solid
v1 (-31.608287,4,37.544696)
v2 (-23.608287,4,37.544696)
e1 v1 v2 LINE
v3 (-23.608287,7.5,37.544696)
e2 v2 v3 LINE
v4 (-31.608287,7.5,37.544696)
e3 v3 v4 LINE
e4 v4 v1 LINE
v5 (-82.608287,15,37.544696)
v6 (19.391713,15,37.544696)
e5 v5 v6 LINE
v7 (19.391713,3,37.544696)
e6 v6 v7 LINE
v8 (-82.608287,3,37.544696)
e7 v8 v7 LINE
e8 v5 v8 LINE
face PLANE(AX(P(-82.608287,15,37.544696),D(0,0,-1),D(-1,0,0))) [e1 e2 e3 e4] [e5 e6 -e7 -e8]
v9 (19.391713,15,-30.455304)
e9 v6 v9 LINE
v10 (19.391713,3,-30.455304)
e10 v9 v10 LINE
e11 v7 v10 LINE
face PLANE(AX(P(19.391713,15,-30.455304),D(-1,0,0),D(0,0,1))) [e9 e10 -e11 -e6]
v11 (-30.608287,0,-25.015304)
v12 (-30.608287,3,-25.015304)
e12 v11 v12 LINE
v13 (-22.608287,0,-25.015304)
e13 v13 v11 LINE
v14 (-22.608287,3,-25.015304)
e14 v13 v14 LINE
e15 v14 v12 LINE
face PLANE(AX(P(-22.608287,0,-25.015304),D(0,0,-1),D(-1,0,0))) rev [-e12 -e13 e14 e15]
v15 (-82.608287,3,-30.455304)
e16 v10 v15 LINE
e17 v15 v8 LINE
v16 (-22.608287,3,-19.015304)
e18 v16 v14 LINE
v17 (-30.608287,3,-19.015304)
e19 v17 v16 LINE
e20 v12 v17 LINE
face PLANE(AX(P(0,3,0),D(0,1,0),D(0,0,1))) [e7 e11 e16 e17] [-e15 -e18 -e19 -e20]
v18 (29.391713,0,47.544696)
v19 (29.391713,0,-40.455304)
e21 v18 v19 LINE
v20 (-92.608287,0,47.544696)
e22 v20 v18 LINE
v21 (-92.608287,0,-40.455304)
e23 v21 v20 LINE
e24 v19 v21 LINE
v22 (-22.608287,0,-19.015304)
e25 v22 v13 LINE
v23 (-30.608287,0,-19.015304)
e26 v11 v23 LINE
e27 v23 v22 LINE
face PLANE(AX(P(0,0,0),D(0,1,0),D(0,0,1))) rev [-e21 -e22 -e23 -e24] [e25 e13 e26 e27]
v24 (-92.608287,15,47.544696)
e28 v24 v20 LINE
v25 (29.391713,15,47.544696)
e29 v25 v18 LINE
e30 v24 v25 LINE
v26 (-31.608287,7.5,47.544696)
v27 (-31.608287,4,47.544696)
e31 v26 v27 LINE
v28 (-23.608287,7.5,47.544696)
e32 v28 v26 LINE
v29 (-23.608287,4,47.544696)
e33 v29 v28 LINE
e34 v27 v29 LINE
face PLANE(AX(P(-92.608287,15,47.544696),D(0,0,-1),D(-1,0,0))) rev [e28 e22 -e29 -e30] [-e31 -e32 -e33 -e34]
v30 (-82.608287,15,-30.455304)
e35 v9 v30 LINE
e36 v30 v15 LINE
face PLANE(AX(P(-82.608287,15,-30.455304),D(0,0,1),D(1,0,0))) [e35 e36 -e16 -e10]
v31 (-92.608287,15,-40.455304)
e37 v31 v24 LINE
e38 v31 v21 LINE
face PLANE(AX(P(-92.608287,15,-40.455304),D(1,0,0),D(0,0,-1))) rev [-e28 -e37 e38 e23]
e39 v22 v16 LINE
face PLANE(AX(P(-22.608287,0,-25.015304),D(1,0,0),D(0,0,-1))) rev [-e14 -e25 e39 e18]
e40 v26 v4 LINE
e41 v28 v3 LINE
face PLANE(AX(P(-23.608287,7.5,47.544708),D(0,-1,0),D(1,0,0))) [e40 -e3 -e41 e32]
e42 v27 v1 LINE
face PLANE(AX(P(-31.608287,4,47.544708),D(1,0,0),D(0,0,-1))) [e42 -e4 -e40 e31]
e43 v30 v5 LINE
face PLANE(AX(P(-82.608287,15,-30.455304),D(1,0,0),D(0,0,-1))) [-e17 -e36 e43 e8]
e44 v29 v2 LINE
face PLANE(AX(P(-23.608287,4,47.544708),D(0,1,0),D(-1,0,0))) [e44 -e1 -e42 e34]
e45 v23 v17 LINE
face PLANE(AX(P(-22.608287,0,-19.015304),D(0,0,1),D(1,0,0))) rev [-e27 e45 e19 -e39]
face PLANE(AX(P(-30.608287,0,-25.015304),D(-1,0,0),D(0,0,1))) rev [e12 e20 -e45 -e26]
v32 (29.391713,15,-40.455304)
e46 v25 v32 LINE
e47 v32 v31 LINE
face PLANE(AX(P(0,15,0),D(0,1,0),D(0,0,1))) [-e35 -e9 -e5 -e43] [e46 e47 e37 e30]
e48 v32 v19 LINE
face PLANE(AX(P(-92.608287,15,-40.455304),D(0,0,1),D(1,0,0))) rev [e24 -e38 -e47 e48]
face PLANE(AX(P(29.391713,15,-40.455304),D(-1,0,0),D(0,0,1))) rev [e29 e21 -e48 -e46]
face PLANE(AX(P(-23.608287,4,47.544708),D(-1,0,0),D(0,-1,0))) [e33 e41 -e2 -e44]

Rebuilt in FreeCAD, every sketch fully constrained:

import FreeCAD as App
import Part
import Sketcher

doc = App.newDocument("Part")
params = doc.addObject("Spreadsheet::Sheet", "Params")
for row, (alias, value) in enumerate([
    ("sketch1_width", "122 mm"),
    ("sketch1_width2", "102 mm"),
    ("sketch1_height", "88 mm"),
    ("sketch1_height2", "68 mm"),
    ("pad1_length", "15 mm"),
    ("sketch2_width", "102 mm"),
    ("sketch2_height", "68 mm"),
    ("pad2_length", "3 mm"),
    ("sketch3_width", "8 mm"),
    ("sketch3_height", "3.5 mm"),
    ("sketch4_width", "8 mm"),
    ("sketch4_height", "3.5 mm"),
    ("pocket2_length", "1 mm"),
    ("sketch5_width", "8 mm"),
    ("sketch5_height", "6 mm"),
], start=1):
    params.set(f"A{row}", alias)
    params.set(f"B{row}", "=" + value)
    params.setAlias(f"B{row}", alias)

body = doc.addObject("PartDesign::Body", "Body")

# Sketch on XZ plane
sketch1 = body.newObject("Sketcher::SketchObject", "Sketch")
sketch1.AttachmentSupport = (doc.getObject("XZ_Plane"), [""])
sketch1.MapMode = "FlatFace"
sketch1.addGeometry(Part.LineSegment(App.Vector(-93, -40, 0), App.Vector(-93, 48, 0)), False)
sketch1.addGeometry(Part.LineSegment(App.Vector(-93, 48, 0), App.Vector(29, 48, 0)), False)
sketch1.addGeometry(Part.LineSegment(App.Vector(29, 48, 0), App.Vector(29, -40, 0)), False)
sketch1.addGeometry(Part.LineSegment(App.Vector(29, -40, 0), App.Vector(-93, -40, 0)), False)
sketch1.addGeometry(Part.LineSegment(App.Vector(19, 38, 0), App.Vector(-83, 38, 0)), False)
sketch1.addGeometry(Part.LineSegment(App.Vector(-83, 38, 0), App.Vector(-83, -30, 0)), False)
sketch1.addGeometry(Part.LineSegment(App.Vector(-83, -30, 0), App.Vector(19, -30, 0)), False)
sketch1.addGeometry(Part.LineSegment(App.Vector(19, -30, 0), App.Vector(19, 38, 0)), False)
sketch1.addConstraint(Sketcher.Constraint("Coincident", 0, 2, 1, 1))
sketch1.addConstraint(Sketcher.Constraint("Coincident", 1, 2, 2, 1))
sketch1.addConstraint(Sketcher.Constraint("Coincident", 2, 2, 3, 1))
sketch1.addConstraint(Sketcher.Constraint("Coincident", 3, 2, 0, 1))
sketch1.addConstraint(Sketcher.Constraint("Coincident", 4, 2, 5, 1))
sketch1.addConstraint(Sketcher.Constraint("Coincident", 5, 2, 6, 1))
sketch1.addConstraint(Sketcher.Constraint("Coincident", 6, 2, 7, 1))
sketch1.addConstraint(Sketcher.Constraint("Coincident", 7, 2, 4, 1))
sketch1.addConstraint(Sketcher.Constraint("Vertical", 0))
sketch1.addConstraint(Sketcher.Constraint("Horizontal", 1))
sketch1.addConstraint(Sketcher.Constraint("Vertical", 2))
sketch1.addConstraint(Sketcher.Constraint("Horizontal", 3))
sketch1.addConstraint(Sketcher.Constraint("Horizontal", 4))
sketch1.addConstraint(Sketcher.Constraint("Vertical", 5))
sketch1.addConstraint(Sketcher.Constraint("Horizontal", 6))
sketch1.addConstraint(Sketcher.Constraint("Vertical", 7))
sketch1.addConstraint(Sketcher.Constraint("DistanceX", 1, 1, 1, 2, 122.0))
sketch1.addConstraint(Sketcher.Constraint("DistanceX", 4, 2, 4, 1, 102.0))
sketch1.addConstraint(Sketcher.Constraint("DistanceY", 0, 1, 0, 2, 88.0))
sketch1.addConstraint(Sketcher.Constraint("DistanceY", 5, 2, 5, 1, 68.0))
sketch1.addConstraint(Sketcher.Constraint("DistanceX", 0, 2, 4, 2, 10.0))
sketch1.addConstraint(Sketcher.Constraint("DistanceY", 4, 2, 0, 2, 10.0))
sketch1.addConstraint(Sketcher.Constraint("DistanceX", 0, 2, -1, 1, 92.608287))
sketch1.addConstraint(Sketcher.Constraint("DistanceY", -1, 1, 0, 2, 47.544696))
sketch1.setExpression("Constraints[16]", "Params.sketch1_width")
sketch1.setExpression("Constraints[17]", "Params.sketch1_width2")
sketch1.setExpression("Constraints[18]", "Params.sketch1_height")
sketch1.setExpression("Constraints[19]", "Params.sketch1_height2")
pad1 = body.newObject("PartDesign::Pad", "Pad")
pad1.Profile = sketch1
pad1.setExpression("Length", "Params.pad1_length")
pad1.Reversed = True

# Sketch on XZ plane
sketch2 = body.newObject("Sketcher::SketchObject", "Sketch001")
sketch2.AttachmentSupport = (doc.getObject("XZ_Plane"), [""])
sketch2.MapMode = "FlatFace"
sketch2.addGeometry(Part.LineSegment(App.Vector(-83, -30, 0), App.Vector(-83, 38, 0)), False)
sketch2.addGeometry(Part.LineSegment(App.Vector(-83, 38, 0), App.Vector(19, 38, 0)), False)
sketch2.addGeometry(Part.LineSegment(App.Vector(19, 38, 0), App.Vector(19, -30, 0)), False)
sketch2.addGeometry(Part.LineSegment(App.Vector(19, -30, 0), App.Vector(-83, -30, 0)), False)
sketch2.addConstraint(Sketcher.Constraint("Coincident", 0, 2, 1, 1))
sketch2.addConstraint(Sketcher.Constraint("Coincident", 1, 2, 2, 1))
sketch2.addConstraint(Sketcher.Constraint("Coincident", 2, 2, 3, 1))
sketch2.addConstraint(Sketcher.Constraint("Coincident", 3, 2, 0, 1))
sketch2.addConstraint(Sketcher.Constraint("Vertical", 0))
sketch2.addConstraint(Sketcher.Constraint("Horizontal", 1))
sketch2.addConstraint(Sketcher.Constraint("Vertical", 2))
sketch2.addConstraint(Sketcher.Constraint("Horizontal", 3))
sketch2.addConstraint(Sketcher.Constraint("DistanceX", 1, 1, 1, 2, 102.0))
sketch2.addConstraint(Sketcher.Constraint("DistanceY", 0, 1, 0, 2, 68.0))
sketch2.addConstraint(Sketcher.Constraint("DistanceX", 0, 2, -1, 1, 82.608287))
sketch2.addConstraint(Sketcher.Constraint("DistanceY", -1, 1, 0, 2, 37.544696))
sketch2.setExpression("Constraints[8]", "Params.sketch2_width")
sketch2.setExpression("Constraints[9]", "Params.sketch2_height")
pad2 = body.newObject("PartDesign::Pad", "Pad001")
pad2.Profile = sketch2
pad2.setExpression("Length", "Params.pad2_length")
pad2.Reversed = True

# Sketch on XY plane
sketch3 = body.newObject("Sketcher::SketchObject", "Sketch002")
sketch3.AttachmentSupport = (doc.getObject("XY_Plane"), [""])
sketch3.MapMode = "FlatFace"
sketch3.AttachmentOffset = App.Placement(App.Vector(0, 0, 47.544696), App.Rotation())
sketch3.addGeometry(Part.LineSegment(App.Vector(-31.6, 7.5, 0), App.Vector(-31.6, 4, 0)), False)
sketch3.addGeometry(Part.LineSegment(App.Vector(-31.6, 4, 0), App.Vector(-23.6, 4, 0)), False)
sketch3.addGeometry(Part.LineSegment(App.Vector(-23.6, 4, 0), App.Vector(-23.6, 7.5, 0)), False)
sketch3.addGeometry(Part.LineSegment(App.Vector(-23.6, 7.5, 0), App.Vector(-31.6, 7.5, 0)), False)
sketch3.addConstraint(Sketcher.Constraint("Coincident", 0, 2, 1, 1))
sketch3.addConstraint(Sketcher.Constraint("Coincident", 1, 2, 2, 1))
sketch3.addConstraint(Sketcher.Constraint("Coincident", 2, 2, 3, 1))
sketch3.addConstraint(Sketcher.Constraint("Coincident", 3, 2, 0, 1))
sketch3.addConstraint(Sketcher.Constraint("Vertical", 0))
sketch3.addConstraint(Sketcher.Constraint("Horizontal", 1))
sketch3.addConstraint(Sketcher.Constraint("Vertical", 2))
sketch3.addConstraint(Sketcher.Constraint("Horizontal", 3))
sketch3.addConstraint(Sketcher.Constraint("DistanceX", 1, 1, 1, 2, 8.0))
sketch3.addConstraint(Sketcher.Constraint("DistanceY", 0, 2, 0, 1, 3.5))
sketch3.addConstraint(Sketcher.Constraint("DistanceY", -1, 1, 0, 2, 4.0))
sketch3.addConstraint(Sketcher.Constraint("DistanceX", 0, 2, -1, 1, 31.608287))
sketch3.setExpression("Constraints[8]", "Params.sketch3_width")
sketch3.setExpression("Constraints[9]", "Params.sketch3_height")
pocket1 = body.newObject("PartDesign::Pocket", "Pocket")
pocket1.Profile = sketch3
pocket1.Type = "UpToFirst"

# Sketch on XY plane
sketch4 = body.newObject("Sketcher::SketchObject", "Sketch003")
sketch4.AttachmentSupport = (doc.getObject("XY_Plane"), [""])
sketch4.MapMode = "FlatFace"
sketch4.AttachmentOffset = App.Placement(App.Vector(0, 0, 47.544696), App.Rotation())
sketch4.addGeometry(Part.LineSegment(App.Vector(-31.6, 7.5, 0), App.Vector(-31.6, 4, 0)), False)
sketch4.addGeometry(Part.LineSegment(App.Vector(-31.6, 4, 0), App.Vector(-23.6, 4, 0)), False)
sketch4.addGeometry(Part.LineSegment(App.Vector(-23.6, 4, 0), App.Vector(-23.6, 7.5, 0)), False)
sketch4.addGeometry(Part.LineSegment(App.Vector(-23.6, 7.5, 0), App.Vector(-31.6, 7.5, 0)), False)
sketch4.addConstraint(Sketcher.Constraint("Coincident", 0, 2, 1, 1))
sketch4.addConstraint(Sketcher.Constraint("Coincident", 1, 2, 2, 1))
sketch4.addConstraint(Sketcher.Constraint("Coincident", 2, 2, 3, 1))
sketch4.addConstraint(Sketcher.Constraint("Coincident", 3, 2, 0, 1))
sketch4.addConstraint(Sketcher.Constraint("Vertical", 0))
sketch4.addConstraint(Sketcher.Constraint("Horizontal", 1))
sketch4.addConstraint(Sketcher.Constraint("Vertical", 2))
sketch4.addConstraint(Sketcher.Constraint("Horizontal", 3))
sketch4.addConstraint(Sketcher.Constraint("DistanceX", 1, 1, 1, 2, 8.0))
sketch4.addConstraint(Sketcher.Constraint("DistanceY", 0, 2, 0, 1, 3.5))
sketch4.addConstraint(Sketcher.Constraint("DistanceY", -1, 1, 0, 2, 4.0))
sketch4.addConstraint(Sketcher.Constraint("DistanceX", 0, 2, -1, 1, 31.608287))
sketch4.setExpression("Constraints[8]", "Params.sketch4_width")
sketch4.setExpression("Constraints[9]", "Params.sketch4_height")
pocket2 = body.newObject("PartDesign::Pocket", "Pocket001")
pocket2.Profile = sketch4
pocket2.setExpression("Length", "Params.pocket2_length")
pocket2.Reversed = True

# Sketch on XZ plane
sketch5 = body.newObject("Sketcher::SketchObject", "Sketch004")
sketch5.AttachmentSupport = (doc.getObject("XZ_Plane"), [""])
sketch5.MapMode = "FlatFace"
sketch5.AttachmentOffset = App.Placement(App.Vector(0, 0, -3), App.Rotation())
sketch5.addGeometry(Part.LineSegment(App.Vector(-31, -25, 0), App.Vector(-31, -19, 0)), False)
sketch5.addGeometry(Part.LineSegment(App.Vector(-31, -19, 0), App.Vector(-23, -19, 0)), False)
sketch5.addGeometry(Part.LineSegment(App.Vector(-23, -19, 0), App.Vector(-23, -25, 0)), False)
sketch5.addGeometry(Part.LineSegment(App.Vector(-23, -25, 0), App.Vector(-31, -25, 0)), False)
sketch5.addConstraint(Sketcher.Constraint("Coincident", 0, 2, 1, 1))
sketch5.addConstraint(Sketcher.Constraint("Coincident", 1, 2, 2, 1))
sketch5.addConstraint(Sketcher.Constraint("Coincident", 2, 2, 3, 1))
sketch5.addConstraint(Sketcher.Constraint("Coincident", 3, 2, 0, 1))
sketch5.addConstraint(Sketcher.Constraint("Vertical", 0))
sketch5.addConstraint(Sketcher.Constraint("Horizontal", 1))
sketch5.addConstraint(Sketcher.Constraint("Vertical", 2))
sketch5.addConstraint(Sketcher.Constraint("Horizontal", 3))
sketch5.addConstraint(Sketcher.Constraint("DistanceX", 1, 1, 1, 2, 8.0))
sketch5.addConstraint(Sketcher.Constraint("DistanceY", 0, 1, 0, 2, 6.0))
sketch5.addConstraint(Sketcher.Constraint("DistanceX", 0, 2, -1, 1, 30.608287))
sketch5.addConstraint(Sketcher.Constraint("DistanceY", 0, 2, -1, 1, 19.015304))
sketch5.setExpression("Constraints[8]", "Params.sketch5_width")
sketch5.setExpression("Constraints[9]", "Params.sketch5_height")
pocket3 = body.newObject("PartDesign::Pocket", "Pocket002")
pocket3.Profile = sketch5
pocket3.Type = "ThroughAll"
pocket3.Reversed = True

doc.recompute()
